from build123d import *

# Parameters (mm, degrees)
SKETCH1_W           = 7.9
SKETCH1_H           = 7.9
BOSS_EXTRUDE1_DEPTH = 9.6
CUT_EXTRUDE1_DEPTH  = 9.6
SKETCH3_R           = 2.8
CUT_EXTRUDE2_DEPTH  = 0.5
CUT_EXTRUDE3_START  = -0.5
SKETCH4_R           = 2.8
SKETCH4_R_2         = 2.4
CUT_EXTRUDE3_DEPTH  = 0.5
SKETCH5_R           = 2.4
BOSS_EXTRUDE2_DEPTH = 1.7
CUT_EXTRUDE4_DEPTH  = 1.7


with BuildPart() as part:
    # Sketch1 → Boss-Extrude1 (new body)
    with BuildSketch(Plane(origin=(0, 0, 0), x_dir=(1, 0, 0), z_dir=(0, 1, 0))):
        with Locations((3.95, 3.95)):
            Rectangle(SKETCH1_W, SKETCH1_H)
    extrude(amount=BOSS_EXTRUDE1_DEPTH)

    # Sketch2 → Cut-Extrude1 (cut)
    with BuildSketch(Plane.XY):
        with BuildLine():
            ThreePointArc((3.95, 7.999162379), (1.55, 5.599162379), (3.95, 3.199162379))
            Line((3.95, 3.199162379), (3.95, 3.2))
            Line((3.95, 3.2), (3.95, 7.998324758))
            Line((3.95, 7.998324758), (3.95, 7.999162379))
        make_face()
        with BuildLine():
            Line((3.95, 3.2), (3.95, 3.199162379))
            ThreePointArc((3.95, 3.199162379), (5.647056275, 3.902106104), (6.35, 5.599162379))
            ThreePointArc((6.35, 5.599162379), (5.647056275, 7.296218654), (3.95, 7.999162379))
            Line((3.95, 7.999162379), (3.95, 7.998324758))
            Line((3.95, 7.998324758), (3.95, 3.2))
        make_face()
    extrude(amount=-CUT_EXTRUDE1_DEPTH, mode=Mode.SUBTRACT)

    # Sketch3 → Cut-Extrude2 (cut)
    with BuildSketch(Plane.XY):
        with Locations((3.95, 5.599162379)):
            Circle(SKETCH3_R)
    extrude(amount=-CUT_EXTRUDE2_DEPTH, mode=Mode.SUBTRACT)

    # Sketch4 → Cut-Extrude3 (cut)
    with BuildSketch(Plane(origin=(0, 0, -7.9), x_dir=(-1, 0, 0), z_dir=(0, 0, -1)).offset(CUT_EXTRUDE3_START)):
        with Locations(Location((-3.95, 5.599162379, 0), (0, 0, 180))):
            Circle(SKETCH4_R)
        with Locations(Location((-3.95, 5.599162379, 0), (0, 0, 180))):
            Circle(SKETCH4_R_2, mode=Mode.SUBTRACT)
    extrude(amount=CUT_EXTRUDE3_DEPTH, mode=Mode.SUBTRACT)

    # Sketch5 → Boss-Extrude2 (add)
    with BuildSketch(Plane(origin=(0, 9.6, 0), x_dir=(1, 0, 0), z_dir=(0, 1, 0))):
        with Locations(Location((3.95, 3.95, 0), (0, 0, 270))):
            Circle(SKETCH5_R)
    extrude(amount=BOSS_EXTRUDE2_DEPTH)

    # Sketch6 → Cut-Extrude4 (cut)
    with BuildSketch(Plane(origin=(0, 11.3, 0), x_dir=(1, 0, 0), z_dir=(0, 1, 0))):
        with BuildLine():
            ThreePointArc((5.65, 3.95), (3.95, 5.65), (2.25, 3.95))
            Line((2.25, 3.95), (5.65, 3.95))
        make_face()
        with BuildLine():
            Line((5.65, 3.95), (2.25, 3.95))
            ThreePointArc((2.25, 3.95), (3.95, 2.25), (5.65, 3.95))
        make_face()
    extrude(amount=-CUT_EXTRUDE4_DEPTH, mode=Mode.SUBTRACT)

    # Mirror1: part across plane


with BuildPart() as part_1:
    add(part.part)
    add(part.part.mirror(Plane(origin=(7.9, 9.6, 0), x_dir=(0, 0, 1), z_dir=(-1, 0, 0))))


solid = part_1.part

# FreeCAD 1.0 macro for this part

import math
import FreeCAD as App
import Part
import Sketcher

V = App.Vector
Q = App.Units.Quantity

doc = App.newDocument("Part")
body = doc.addObject("PartDesign::Body", "Body")

# Sketch on XZ plane
sketch1 = body.newObject("Sketcher::SketchObject", "Sketch")
sketch1.AttachmentSupport = (doc.getObject("XZ_Plane"), [""])
sketch1.MapMode = "FlatFace"
sketch1.addGeometry(Part.LineSegment(V(0, -8, 0), V(0, 0, 0)), False)
sketch1.addGeometry(Part.LineSegment(V(0, 0, 0), V(8, 0, 0)), False)
sketch1.addGeometry(Part.LineSegment(V(8, 0, 0), V(8, -8, 0)), False)
sketch1.addGeometry(Part.LineSegment(V(8, -8, 0), V(0, -8, 0)), False)
sketch1.addConstraint(Sketcher.Constraint("Coincident", 0, 2, 1, 1))
sketch1.addConstraint(Sketcher.Constraint("Coincident", 1, 2, 2, 1))
sketch1.addConstraint(Sketcher.Constraint("Coincident", 2, 2, 3, 1))
sketch1.addConstraint(Sketcher.Constraint("Coincident", 3, 2, 0, 1))
sketch1.addConstraint(Sketcher.Constraint("Vertical", 0))
sketch1.addConstraint(Sketcher.Constraint("Horizontal", 1))
sketch1.addConstraint(Sketcher.Constraint("Vertical", 2))
sketch1.addConstraint(Sketcher.Constraint("Horizontal", 3))
sketch1.addConstraint(Sketcher.Constraint("Coincident", 0, 2, -1, 1))
sketch1.addConstraint(Sketcher.Constraint("Equal", 3, 0))
sketch1.addConstraint(Sketcher.Constraint("DistanceX", 1, 1, 1, 2, Q("7.9 mm")))
pad1 = body.newObject("PartDesign::Pad", "Pad")
pad1.Profile = sketch1
pad1.Length = 9.6
pad1.Reversed = True

# Sketch on XY plane
sketch2 = body.newObject("Sketcher::SketchObject", "Sketch001")
sketch2.AttachmentSupport = (doc.getObject("XY_Plane"), [""])
sketch2.MapMode = "FlatFace"
sketch2.addGeometry(Part.ArcOfCircle(Part.Circle(V(4, 5.6, 0), V(0, 0, 1), 2.4), math.radians(90), math.radians(270)), False)
sketch2.addGeometry(Part.ArcOfCircle(Part.Circle(V(4, 5.6, 0), V(0, 0, 1), 2.4), math.radians(-90), math.radians(0)), False)
sketch2.addGeometry(Part.ArcOfCircle(Part.Circle(V(4, 5.6, 0), V(0, 0, 1), 2.4), math.radians(0), math.radians(90)), False)
sketch2.addConstraint(Sketcher.Constraint("Tangent", 0, 2, 1, 1))
sketch2.addConstraint(Sketcher.Constraint("Tangent", 1, 2, 2, 1))
sketch2.addConstraint(Sketcher.Constraint("Tangent", 2, 2, 0, 1))
sketch2.addConstraint(Sketcher.Constraint("Horizontal", 2, 3, 1, 2))
sketch2.addConstraint(Sketcher.Constraint("Vertical", 2, 3, 0, 2))
sketch2.addConstraint(Sketcher.Constraint("Vertical", 0, 2, 2, 2))
sketch2.addConstraint(Sketcher.Constraint("Radius", 0, Q("2.4 mm")))
sketch2.addConstraint(Sketcher.Constraint("DistanceX", -1, 1, 0, 3, Q("3.95 mm")))
sketch2.addConstraint(Sketcher.Constraint("DistanceY", -1, 1, 0, 3, Q("5.599162 mm")))
pocket1 = body.newObject("PartDesign::Pocket", "Pocket")
pocket1.Profile = sketch2
pocket1.Length = 9.6

# Sketch on XY plane
sketch3 = body.newObject("Sketcher::SketchObject", "Sketch002")
sketch3.AttachmentSupport = (doc.getObject("XY_Plane"), [""])
sketch3.MapMode = "FlatFace"
sketch3.addGeometry(Part.Circle(V(4, 5.6, 0), V(0, 0, 1), 2.8), False)
sketch3.addConstraint(Sketcher.Constraint("Diameter", 0, Q("5.6 mm")))
sketch3.addConstraint(Sketcher.Constraint("DistanceX", -1, 1, 0, 3, Q("3.95 mm")))
sketch3.addConstraint(Sketcher.Constraint("DistanceY", -1, 1, 0, 3, Q("5.599162 mm")))
pocket2 = body.newObject("PartDesign::Pocket", "Pocket001")
pocket2.Profile = sketch3
pocket2.Length = 0.5

# Sketch on XY plane
sketch4 = body.newObject("Sketcher::SketchObject", "Sketch003")
sketch4.AttachmentSupport = (doc.getObject("XY_Plane"), [""])
sketch4.MapMode = "FlatFace"
sketch4.AttachmentOffset = App.Placement(V(0, 0, -7.4), App.Rotation())
sketch4.addGeometry(Part.Circle(V(4, 5.6, 0), V(0, 0, 1), 2.8), False)
sketch4.addGeometry(Part.Circle(V(4, 5.6, 0), V(0, 0, 1), 2.4), False)
sketch4.addConstraint(Sketcher.Constraint("Coincident", 1, 3, 0, 3))
sketch4.addConstraint(Sketcher.Constraint("Diameter", 0, Q("5.6 mm")))
sketch4.addConstraint(Sketcher.Constraint("Diameter", 1, Q("4.8 mm")))
sketch4.addConstraint(Sketcher.Constraint("DistanceX", -1, 1, 0, 3, Q("3.95 mm")))
sketch4.addConstraint(Sketcher.Constraint("DistanceY", -1, 1, 0, 3, Q("5.599162 mm")))
pocket3 = body.newObject("PartDesign::Pocket", "Pocket002")
pocket3.Profile = sketch4
pocket3.Length = 0.5

# Sketch on XZ plane
sketch5 = body.newObject("Sketcher::SketchObject", "Sketch004")
sketch5.AttachmentSupport = (doc.getObject("XZ_Plane"), [""])
sketch5.MapMode = "FlatFace"
sketch5.AttachmentOffset = App.Placement(V(0, 0, -9.6), App.Rotation())
sketch5.addGeometry(Part.Circle(V(4, -4, 0), V(0, 0, 1), 2.4), False)
sketch5.addConstraint(Sketcher.Constraint("Diameter", 0, Q("4.8 mm")))
sketch5.addConstraint(Sketcher.Constraint("DistanceX", -1, 1, 0, 3, Q("3.95 mm")))
sketch5.addConstraint(Sketcher.Constraint("DistanceY", 0, 3, -1, 1, Q("3.95 mm")))
pad2 = body.newObject("PartDesign::Pad", "Pad001")
pad2.Profile = sketch5
pad2.Length = 1.7
pad2.Reversed = True

# Sketch on XZ plane
sketch6 = body.newObject("Sketcher::SketchObject", "Sketch005")
sketch6.AttachmentSupport = (doc.getObject("XZ_Plane"), [""])
sketch6.MapMode = "FlatFace"
sketch6.AttachmentOffset = App.Placement(V(0, 0, -11.3), App.Rotation())
sketch6.addGeometry(Part.Circle(V(4, -4, 0), V(0, 0, 1), 1.7), False)
sketch6.addConstraint(Sketcher.Constraint("Diameter", 0, Q("3.4 mm")))
sketch6.addConstraint(Sketcher.Constraint("DistanceX", -1, 1, 0, 3, Q("3.95 mm")))
sketch6.addConstraint(Sketcher.Constraint("DistanceY", 0, 3, -1, 1, Q("3.95 mm")))
pocket4 = body.newObject("PartDesign::Pocket", "Pocket003")
pocket4.Profile = sketch6
pocket4.Length = 1.7
pocket4.Reversed = True
body2 = doc.addObject("PartDesign::Body", "Body001")
doc.recompute()

body2.BaseFeature = body
doc.recompute()

mirroring = doc.addObject("Part::Mirroring", "Mirroring")
mirroring.Source = body
mirroring.Base = V(7.9, 9.6, 0)
mirroring.Normal = V(-1, 0, 0)
body3 = doc.addObject("PartDesign::Body", "Body002")
body3.BaseFeature = mirroring
boolean = body2.newObject("PartDesign::Boolean", "Boolean")
boolean.Type = "Fuse"
boolean.addObjects([body3])
doc.recompute()
mirroring.Visibility = False

doc.recompute()
